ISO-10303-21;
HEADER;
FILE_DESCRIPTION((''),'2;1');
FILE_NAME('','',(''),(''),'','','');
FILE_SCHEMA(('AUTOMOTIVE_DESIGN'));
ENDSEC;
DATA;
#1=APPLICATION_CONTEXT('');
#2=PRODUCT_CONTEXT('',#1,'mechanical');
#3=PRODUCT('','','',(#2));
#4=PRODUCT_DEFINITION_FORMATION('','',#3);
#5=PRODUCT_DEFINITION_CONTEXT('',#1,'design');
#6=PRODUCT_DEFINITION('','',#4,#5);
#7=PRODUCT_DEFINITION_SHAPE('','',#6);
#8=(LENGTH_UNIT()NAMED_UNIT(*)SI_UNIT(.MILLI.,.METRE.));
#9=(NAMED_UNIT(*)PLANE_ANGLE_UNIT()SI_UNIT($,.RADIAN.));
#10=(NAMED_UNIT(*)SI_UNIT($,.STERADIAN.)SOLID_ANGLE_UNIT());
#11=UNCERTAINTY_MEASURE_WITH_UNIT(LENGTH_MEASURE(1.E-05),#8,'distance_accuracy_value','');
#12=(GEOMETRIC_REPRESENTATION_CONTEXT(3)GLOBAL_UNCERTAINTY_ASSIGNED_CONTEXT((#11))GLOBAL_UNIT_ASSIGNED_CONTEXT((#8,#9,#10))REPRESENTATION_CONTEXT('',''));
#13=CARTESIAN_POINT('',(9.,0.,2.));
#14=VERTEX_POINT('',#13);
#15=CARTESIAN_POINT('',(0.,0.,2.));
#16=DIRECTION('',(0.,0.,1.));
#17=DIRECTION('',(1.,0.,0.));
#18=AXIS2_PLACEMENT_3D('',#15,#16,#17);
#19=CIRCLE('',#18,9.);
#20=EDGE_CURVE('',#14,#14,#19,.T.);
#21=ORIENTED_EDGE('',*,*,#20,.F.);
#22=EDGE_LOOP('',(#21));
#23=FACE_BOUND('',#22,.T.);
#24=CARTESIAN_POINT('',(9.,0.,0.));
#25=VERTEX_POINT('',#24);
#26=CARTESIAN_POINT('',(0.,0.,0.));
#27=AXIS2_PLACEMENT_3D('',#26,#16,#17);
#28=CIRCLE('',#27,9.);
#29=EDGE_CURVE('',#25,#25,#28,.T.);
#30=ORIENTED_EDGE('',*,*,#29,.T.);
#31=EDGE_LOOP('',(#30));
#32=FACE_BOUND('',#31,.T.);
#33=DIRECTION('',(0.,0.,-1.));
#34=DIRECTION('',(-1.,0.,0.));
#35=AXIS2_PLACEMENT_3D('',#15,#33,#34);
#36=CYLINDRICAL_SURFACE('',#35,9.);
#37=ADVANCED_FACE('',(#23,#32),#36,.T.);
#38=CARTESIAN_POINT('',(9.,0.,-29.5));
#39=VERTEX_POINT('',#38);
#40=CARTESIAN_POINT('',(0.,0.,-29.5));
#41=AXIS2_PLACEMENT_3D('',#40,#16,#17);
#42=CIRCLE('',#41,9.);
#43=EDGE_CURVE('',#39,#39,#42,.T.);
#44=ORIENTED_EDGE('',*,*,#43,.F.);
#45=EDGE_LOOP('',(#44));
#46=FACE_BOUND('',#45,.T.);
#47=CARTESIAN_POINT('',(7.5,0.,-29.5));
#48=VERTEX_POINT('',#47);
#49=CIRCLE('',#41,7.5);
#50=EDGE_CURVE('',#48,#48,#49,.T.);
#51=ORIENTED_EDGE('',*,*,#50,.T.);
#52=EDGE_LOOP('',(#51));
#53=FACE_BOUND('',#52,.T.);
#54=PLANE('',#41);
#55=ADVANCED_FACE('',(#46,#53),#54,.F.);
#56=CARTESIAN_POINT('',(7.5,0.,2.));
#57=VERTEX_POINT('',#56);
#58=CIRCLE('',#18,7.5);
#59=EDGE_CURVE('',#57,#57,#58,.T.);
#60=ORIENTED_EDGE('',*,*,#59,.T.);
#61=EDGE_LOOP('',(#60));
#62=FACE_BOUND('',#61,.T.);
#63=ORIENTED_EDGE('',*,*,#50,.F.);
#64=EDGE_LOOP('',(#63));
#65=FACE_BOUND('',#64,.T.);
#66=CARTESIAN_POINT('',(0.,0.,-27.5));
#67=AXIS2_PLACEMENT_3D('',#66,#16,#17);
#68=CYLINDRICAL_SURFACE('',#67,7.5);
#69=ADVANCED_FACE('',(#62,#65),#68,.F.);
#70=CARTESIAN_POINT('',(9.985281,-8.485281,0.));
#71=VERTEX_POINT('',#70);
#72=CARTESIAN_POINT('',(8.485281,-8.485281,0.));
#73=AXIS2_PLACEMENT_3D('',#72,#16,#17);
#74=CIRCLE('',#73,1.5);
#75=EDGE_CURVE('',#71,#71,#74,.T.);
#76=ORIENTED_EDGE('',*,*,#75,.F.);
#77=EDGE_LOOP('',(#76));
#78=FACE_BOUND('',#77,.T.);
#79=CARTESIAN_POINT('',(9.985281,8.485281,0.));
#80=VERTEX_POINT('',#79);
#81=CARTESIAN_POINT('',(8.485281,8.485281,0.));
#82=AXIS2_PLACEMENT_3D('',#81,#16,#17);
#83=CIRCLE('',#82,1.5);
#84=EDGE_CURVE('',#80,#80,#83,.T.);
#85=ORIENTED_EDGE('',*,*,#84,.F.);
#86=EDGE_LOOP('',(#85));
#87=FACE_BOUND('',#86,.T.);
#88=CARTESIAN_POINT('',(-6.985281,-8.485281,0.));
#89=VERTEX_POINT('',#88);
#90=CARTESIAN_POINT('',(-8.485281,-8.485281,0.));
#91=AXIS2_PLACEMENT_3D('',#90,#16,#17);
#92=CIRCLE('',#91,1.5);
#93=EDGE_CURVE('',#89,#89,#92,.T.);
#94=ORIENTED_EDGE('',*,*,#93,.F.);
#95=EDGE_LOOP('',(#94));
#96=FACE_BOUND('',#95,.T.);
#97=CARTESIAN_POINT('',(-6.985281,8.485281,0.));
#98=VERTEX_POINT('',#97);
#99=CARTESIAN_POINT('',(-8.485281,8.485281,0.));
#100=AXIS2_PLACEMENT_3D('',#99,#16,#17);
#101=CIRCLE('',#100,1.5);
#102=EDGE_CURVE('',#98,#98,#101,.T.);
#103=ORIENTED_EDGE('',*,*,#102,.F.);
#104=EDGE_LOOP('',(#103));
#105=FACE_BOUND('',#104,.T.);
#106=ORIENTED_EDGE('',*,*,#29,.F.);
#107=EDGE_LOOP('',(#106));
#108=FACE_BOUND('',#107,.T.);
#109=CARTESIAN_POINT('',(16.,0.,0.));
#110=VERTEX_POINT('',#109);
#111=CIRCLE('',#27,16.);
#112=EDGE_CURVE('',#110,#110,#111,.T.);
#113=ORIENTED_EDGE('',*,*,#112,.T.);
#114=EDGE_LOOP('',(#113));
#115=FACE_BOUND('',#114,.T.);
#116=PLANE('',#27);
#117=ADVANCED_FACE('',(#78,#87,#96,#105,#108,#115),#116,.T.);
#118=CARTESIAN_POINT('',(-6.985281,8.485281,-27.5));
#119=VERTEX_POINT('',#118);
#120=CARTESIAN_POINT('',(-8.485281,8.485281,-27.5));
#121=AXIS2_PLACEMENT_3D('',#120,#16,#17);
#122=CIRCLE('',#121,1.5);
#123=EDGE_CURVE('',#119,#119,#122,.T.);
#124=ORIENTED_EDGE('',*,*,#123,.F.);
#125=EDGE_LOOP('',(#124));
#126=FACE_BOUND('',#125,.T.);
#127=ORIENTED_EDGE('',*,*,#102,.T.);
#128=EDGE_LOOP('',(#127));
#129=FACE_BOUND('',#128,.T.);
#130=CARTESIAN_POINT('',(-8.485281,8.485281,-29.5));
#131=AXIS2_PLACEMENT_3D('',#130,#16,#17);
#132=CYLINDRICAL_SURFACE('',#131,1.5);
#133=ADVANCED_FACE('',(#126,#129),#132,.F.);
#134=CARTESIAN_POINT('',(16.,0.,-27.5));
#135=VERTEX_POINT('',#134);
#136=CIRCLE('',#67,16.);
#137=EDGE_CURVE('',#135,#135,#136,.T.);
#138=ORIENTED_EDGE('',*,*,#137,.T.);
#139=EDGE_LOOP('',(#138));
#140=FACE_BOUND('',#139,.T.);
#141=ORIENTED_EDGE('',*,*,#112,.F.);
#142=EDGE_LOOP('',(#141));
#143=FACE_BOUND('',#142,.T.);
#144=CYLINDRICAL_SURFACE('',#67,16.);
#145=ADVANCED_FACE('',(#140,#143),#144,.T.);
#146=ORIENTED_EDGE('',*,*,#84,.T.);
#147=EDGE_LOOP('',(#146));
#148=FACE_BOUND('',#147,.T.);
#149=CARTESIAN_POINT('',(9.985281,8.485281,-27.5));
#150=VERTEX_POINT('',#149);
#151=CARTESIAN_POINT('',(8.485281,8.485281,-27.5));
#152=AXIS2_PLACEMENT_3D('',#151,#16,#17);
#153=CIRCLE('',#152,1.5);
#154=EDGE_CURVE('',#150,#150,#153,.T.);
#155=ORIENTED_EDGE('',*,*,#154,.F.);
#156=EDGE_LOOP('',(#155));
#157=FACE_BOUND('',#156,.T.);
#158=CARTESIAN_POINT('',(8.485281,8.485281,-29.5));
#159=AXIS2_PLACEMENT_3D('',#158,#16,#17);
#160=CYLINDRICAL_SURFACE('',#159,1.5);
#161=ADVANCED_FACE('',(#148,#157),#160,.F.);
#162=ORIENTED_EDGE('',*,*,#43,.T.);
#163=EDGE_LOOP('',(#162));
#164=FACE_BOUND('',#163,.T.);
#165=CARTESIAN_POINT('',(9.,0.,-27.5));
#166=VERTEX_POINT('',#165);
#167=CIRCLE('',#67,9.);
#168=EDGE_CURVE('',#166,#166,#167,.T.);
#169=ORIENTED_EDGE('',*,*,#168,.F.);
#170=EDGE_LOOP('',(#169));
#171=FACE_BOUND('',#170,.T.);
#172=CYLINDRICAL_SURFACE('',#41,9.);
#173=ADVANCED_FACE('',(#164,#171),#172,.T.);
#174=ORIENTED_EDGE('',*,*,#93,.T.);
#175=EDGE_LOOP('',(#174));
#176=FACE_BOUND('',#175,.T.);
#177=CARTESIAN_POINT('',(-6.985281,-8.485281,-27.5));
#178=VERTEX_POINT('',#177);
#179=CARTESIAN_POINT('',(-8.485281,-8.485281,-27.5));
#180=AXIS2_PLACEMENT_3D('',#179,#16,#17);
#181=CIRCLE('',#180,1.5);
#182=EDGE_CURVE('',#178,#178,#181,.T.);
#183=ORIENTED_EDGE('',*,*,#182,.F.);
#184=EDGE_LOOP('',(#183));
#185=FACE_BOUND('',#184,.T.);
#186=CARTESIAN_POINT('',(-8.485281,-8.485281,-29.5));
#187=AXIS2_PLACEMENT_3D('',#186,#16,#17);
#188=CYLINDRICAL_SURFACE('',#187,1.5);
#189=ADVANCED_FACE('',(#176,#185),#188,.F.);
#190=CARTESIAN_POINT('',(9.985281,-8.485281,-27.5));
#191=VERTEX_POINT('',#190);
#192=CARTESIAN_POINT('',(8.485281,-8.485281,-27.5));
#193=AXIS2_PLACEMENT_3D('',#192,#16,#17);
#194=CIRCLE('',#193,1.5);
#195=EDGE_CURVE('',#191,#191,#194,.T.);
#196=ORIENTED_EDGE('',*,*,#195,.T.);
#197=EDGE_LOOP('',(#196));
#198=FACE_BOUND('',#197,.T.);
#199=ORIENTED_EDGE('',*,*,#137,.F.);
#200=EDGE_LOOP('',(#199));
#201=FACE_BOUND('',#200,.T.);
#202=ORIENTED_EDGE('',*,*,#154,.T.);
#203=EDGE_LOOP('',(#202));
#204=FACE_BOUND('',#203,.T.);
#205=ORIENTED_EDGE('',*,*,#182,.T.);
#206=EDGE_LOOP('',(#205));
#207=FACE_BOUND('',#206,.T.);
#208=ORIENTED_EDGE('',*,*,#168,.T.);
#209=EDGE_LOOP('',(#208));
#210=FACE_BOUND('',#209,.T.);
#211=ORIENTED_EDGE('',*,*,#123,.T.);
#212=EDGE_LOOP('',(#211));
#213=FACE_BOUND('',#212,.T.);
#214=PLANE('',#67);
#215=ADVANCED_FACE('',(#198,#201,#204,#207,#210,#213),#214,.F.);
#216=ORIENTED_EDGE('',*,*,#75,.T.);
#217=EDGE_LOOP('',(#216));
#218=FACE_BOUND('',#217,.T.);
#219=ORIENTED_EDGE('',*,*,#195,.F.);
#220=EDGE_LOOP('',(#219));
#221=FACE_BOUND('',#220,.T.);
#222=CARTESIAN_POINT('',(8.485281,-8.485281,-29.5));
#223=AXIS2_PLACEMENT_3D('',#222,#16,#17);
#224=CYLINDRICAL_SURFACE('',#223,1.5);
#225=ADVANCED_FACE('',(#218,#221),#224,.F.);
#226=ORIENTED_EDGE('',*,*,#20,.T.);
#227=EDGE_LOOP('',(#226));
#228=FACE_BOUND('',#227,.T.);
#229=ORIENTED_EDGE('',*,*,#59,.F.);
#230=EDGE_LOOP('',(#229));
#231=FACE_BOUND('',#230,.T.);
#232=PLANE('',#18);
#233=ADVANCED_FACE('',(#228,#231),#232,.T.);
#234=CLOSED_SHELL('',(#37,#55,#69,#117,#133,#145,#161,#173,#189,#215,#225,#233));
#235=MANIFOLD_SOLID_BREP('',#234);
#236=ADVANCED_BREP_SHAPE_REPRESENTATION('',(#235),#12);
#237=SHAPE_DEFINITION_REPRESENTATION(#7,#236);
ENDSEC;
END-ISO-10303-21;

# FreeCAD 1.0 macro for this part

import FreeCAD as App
import Part
import Sketcher

V = App.Vector

doc = App.newDocument("Part")
body = doc.addObject("PartDesign::Body", "Body")

# Sketch on XY plane
sketch1 = body.newObject("Sketcher::SketchObject", "Sketch")
sketch1.AttachmentSupport = (doc.getObject("XY_Plane"), [""])
sketch1.MapMode = "FlatFace"
sketch1.addGeometry(Part.Circle(V(0, 0, 0), V(0, 0, 1), 16), False)
sketch1.addGeometry(Part.Circle(V(0, 0, 0), V(0, 0, 1), 8), False)
sketch1.addConstraint(Sketcher.Constraint("Coincident", 0, 3, -1, 1))
sketch1.addConstraint(Sketcher.Constraint("Coincident", 1, 3, -1, 1))
sketch1.addConstraint(Sketcher.Constraint("Diameter", 0, 32.0))
sketch1.addConstraint(Sketcher.Constraint("Diameter", 1, 15.0))
pad1 = body.newObject("PartDesign::Pad", "Pad")
pad1.Profile = sketch1
pad1.Length = 27.5
pad1.Reversed = True

# Sketch on XY plane
sketch2 = body.newObject("Sketcher::SketchObject", "Sketch001")
sketch2.AttachmentSupport = (doc.getObject("XY_Plane"), [""])
sketch2.MapMode = "FlatFace"
sketch2.AttachmentOffset = App.Placement(V(0, 0, 2), App.Rotation())
sketch2.addGeometry(Part.Circle(V(0, 0, 0), V(0, 0, 1), 9), False)
sketch2.addGeometry(Part.Circle(V(0, 0, 0), V(0, 0, 1), 8), False)
sketch2.addConstraint(Sketcher.Constraint("Coincident", 0, 3, -1, 1))
sketch2.addConstraint(Sketcher.Constraint("Coincident", 1, 3, -1, 1))
sketch2.addConstraint(Sketcher.Constraint("Diameter", 0, 18.0))
sketch2.addConstraint(Sketcher.Constraint("Diameter", 1, 15.0))
pad2 = body.newObject("PartDesign::Pad", "Pad001")
pad2.Profile = sketch2
pad2.Length = 2
pad2.Reversed = True

# Sketch on XY plane
sketch3 = body.newObject("Sketcher::SketchObject", "Sketch002")
sketch3.AttachmentSupport = (doc.getObject("XY_Plane"), [""])
sketch3.MapMode = "FlatFace"
sketch3.AttachmentOffset = App.Placement(V(0, 0, -27.5), App.Rotation())
sketch3.addGeometry(Part.Circle(V(0, 0, 0), V(0, 0, 1), 9), False)
sketch3.addGeometry(Part.Circle(V(0, 0, 0), V(0, 0, 1), 8), False)
sketch3.addConstraint(Sketcher.Constraint("Coincident", 0, 3, -1, 1))
sketch3.addConstraint(Sketcher.Constraint("Coincident", 1, 3, -1, 1))
sketch3.addConstraint(Sketcher.Constraint("Diameter", 0, 18.0))
sketch3.addConstraint(Sketcher.Constraint("Diameter", 1, 15.0))
pad3 = body.newObject("PartDesign::Pad", "Pad002")
pad3.Profile = sketch3
pad3.Length = 2
pad3.Reversed = True

# Sketch on XY plane
sketch4 = body.newObject("Sketcher::SketchObject", "Sketch003")
sketch4.AttachmentSupport = (doc.getObject("XY_Plane"), [""])
sketch4.MapMode = "FlatFace"
sketch4.addGeometry(Part.Circle(V(-8.5, 8.5, 0), V(0, 0, 1), 1.5), False)
sketch4.addGeometry(Part.Circle(V(8.5, 8.5, 0), V(0, 0, 1), 1.5), False)
sketch4.addGeometry(Part.Circle(V(8.5, -8.5, 0), V(0, 0, 1), 1.5), False)
sketch4.addGeometry(Part.Circle(V(-8.5, -8.5, 0), V(0, 0, 1), 1.5), False)
sketch4.addConstraint(Sketcher.Constraint("Equal", 0, 1))
sketch4.addConstraint(Sketcher.Constraint("Equal", 1, 2))
sketch4.addConstraint(Sketcher.Constraint("Equal", 2, 3))
sketch4.addConstraint(Sketcher.Constraint("Symmetric", 0, 3, 2, 3, -1, 1))
sketch4.addConstraint(Sketcher.Constraint("Symmetric", 1, 3, 3, 3, -1, 1))
sketch4.addConstraint(Sketcher.Constraint("Symmetric", 0, 3, 1, 3, -2))
sketch4.addConstraint(Sketcher.Constraint("Diameter", 0, 3.0))
sketch4.addConstraint(Sketcher.Constraint("DistanceX", 0, 3, -1, 1, 8.485281))
sketch4.addConstraint(Sketcher.Constraint("DistanceY", -1, 1, 0, 3, 8.485281))
pocket1 = body.newObject("PartDesign::Pocket", "Pocket")
pocket1.Profile = sketch4
pocket1.Type = "ThroughAll"

doc.recompute()
